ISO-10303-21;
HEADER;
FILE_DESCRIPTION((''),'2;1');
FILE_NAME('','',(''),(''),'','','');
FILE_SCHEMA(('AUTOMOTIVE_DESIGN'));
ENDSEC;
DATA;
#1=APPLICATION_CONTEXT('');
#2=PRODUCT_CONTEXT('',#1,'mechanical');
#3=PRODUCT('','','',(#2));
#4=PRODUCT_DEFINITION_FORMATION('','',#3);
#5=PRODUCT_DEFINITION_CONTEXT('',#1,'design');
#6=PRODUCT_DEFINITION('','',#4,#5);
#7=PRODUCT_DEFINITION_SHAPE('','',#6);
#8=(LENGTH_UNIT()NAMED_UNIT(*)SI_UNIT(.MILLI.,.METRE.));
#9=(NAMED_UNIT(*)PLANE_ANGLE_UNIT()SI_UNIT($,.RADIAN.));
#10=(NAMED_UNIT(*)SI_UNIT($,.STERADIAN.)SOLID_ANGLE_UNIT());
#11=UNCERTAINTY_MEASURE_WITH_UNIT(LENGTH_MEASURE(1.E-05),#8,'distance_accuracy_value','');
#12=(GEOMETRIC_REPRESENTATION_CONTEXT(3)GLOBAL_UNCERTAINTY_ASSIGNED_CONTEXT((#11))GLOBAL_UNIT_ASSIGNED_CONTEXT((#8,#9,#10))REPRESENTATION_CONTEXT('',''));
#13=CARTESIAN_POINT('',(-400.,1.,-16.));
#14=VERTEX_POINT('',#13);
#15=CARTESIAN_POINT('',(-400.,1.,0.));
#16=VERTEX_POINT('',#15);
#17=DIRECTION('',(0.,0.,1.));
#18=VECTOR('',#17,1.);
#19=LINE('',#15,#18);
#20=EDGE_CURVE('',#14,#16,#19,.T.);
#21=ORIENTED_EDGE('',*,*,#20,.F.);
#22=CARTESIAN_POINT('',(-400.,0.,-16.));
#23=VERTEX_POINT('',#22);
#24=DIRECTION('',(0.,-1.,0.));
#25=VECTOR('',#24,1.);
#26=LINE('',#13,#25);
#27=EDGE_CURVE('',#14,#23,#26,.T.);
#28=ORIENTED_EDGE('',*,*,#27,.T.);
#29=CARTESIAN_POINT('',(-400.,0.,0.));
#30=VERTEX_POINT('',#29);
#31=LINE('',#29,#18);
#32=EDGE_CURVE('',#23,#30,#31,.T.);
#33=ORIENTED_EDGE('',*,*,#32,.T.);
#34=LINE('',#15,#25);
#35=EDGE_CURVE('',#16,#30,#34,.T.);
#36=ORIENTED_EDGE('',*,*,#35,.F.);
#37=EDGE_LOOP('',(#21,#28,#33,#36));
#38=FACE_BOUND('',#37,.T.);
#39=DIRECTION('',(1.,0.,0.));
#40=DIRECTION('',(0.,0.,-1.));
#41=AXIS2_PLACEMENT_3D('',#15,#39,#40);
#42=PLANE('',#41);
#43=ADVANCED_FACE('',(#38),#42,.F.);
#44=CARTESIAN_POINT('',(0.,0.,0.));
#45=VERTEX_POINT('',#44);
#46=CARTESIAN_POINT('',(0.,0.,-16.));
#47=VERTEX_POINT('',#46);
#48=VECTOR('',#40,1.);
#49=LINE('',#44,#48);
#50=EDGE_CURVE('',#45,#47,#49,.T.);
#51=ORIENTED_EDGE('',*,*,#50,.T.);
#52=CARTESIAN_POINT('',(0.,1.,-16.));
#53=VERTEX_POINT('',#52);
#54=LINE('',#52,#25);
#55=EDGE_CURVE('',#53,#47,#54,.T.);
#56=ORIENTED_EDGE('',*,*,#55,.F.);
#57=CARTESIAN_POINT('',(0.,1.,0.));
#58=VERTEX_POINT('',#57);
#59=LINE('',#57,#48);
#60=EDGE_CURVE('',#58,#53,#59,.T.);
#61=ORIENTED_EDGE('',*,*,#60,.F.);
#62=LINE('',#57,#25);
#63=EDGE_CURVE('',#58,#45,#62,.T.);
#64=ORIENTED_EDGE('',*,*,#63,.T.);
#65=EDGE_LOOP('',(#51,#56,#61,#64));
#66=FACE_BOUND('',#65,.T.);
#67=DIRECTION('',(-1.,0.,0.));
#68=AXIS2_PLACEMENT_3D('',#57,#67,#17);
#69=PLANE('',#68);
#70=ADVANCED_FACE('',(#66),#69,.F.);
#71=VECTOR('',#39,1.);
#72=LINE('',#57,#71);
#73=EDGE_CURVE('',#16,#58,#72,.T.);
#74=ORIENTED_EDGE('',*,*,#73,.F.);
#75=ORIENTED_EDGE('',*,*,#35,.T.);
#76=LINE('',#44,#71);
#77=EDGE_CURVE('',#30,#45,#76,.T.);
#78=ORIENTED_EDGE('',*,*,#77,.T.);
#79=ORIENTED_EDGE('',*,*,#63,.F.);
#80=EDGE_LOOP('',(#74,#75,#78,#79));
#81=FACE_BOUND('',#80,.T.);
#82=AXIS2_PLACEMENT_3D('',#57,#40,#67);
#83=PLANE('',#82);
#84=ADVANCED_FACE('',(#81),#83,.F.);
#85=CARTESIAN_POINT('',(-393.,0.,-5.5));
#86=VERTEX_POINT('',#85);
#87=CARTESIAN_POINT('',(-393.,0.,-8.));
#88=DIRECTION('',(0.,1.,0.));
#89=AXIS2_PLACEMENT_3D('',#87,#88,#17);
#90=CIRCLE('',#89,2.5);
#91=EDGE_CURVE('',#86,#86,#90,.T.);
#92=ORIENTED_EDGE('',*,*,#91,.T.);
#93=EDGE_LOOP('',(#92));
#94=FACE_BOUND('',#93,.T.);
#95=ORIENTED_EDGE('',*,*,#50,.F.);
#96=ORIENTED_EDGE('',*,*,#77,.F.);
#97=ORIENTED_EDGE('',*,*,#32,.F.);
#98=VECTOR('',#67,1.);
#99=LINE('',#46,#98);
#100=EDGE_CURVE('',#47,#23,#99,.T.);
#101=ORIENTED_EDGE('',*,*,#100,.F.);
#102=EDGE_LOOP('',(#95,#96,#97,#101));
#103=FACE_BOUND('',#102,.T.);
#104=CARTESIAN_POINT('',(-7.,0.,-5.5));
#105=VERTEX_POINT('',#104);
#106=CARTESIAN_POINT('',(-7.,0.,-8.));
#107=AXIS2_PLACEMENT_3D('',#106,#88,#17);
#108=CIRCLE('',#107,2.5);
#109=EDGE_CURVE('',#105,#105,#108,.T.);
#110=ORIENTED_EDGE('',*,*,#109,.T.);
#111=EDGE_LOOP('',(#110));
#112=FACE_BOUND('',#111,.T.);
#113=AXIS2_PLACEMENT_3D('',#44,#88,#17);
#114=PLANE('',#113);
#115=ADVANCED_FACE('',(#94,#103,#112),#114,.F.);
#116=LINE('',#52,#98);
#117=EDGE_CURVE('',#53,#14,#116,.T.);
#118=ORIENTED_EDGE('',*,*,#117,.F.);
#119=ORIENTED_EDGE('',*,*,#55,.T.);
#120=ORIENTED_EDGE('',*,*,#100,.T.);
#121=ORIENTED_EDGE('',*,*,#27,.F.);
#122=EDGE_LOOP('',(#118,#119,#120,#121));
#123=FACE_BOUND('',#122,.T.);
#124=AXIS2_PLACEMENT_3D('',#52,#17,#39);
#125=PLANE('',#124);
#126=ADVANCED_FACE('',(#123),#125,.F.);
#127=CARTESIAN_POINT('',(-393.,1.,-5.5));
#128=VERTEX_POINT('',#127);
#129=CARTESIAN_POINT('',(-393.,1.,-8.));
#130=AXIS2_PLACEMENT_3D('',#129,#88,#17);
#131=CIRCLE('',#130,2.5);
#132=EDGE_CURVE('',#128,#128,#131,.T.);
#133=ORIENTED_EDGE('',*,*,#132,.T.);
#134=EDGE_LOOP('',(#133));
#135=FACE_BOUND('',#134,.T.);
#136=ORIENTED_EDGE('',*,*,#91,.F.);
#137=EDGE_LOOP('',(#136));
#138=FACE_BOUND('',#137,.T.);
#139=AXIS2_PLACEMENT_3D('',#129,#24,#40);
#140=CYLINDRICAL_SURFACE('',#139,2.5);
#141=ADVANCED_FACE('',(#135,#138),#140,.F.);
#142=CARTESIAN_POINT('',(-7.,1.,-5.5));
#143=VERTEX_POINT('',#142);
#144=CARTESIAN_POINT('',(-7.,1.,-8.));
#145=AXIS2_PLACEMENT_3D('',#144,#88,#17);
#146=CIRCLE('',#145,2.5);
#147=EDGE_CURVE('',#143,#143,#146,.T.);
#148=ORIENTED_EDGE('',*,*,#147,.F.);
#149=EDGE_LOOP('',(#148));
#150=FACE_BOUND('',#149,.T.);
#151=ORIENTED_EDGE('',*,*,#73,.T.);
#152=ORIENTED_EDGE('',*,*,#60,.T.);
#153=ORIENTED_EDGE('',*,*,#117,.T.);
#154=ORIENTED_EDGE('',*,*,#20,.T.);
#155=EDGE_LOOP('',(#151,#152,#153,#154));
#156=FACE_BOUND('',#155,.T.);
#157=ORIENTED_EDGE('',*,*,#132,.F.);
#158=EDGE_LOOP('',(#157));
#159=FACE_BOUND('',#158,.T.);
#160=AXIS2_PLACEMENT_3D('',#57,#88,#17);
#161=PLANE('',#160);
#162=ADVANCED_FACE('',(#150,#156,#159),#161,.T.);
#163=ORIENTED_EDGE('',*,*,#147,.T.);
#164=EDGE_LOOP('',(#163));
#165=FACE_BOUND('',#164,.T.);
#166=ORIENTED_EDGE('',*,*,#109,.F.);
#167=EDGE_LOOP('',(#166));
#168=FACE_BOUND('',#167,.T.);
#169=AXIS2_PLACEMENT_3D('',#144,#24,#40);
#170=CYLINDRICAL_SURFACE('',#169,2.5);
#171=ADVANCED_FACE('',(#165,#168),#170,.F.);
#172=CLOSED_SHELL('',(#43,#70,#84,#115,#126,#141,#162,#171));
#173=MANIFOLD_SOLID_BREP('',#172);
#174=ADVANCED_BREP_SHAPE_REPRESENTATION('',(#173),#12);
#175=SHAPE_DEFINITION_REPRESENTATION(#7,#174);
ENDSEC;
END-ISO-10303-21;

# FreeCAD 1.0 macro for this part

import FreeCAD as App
import Part
import Sketcher
from FreeCAD import Vector

doc = App.newDocument("Part")
body = doc.addObject("PartDesign::Body", "Body")

# Sketch on XZ plane
sketch1 = body.newObject("Sketcher::SketchObject", "Sketch")
sketch1.AttachmentSupport = (doc.getObject("XZ_Plane"), [""])
sketch1.MapMode = "FlatFace"
sketch1.addGeometry(Part.LineSegment(Vector(-400, -16, 0), Vector(-400, 0, 0)), False)
sketch1.addGeometry(Part.LineSegment(Vector(-400, 0, 0), Vector(0, 0, 0)), False)
sketch1.addGeometry(Part.LineSegment(Vector(0, 0, 0), Vector(0, -16, 0)), False)
sketch1.addGeometry(Part.LineSegment(Vector(0, -16, 0), Vector(-400, -16, 0)), False)
sketch1.addGeometry(Part.Circle(Vector(-393, -8, 0), Vector(0, 0, 1), 2.5), False)
sketch1.addGeometry(Part.Circle(Vector(-7, -8, 0), Vector(0, 0, 1), 2.5), False)
sketch1.addConstraint(Sketcher.Constraint("Coincident", 0, 2, 1, 1))
sketch1.addConstraint(Sketcher.Constraint("Coincident", 1, 2, 2, 1))
sketch1.addConstraint(Sketcher.Constraint("Coincident", 2, 2, 3, 1))
sketch1.addConstraint(Sketcher.Constraint("Coincident", 3, 2, 0, 1))
sketch1.addConstraint(Sketcher.Constraint("Vertical", 0))
sketch1.addConstraint(Sketcher.Constraint("Horizontal", 1))
sketch1.addConstraint(Sketcher.Constraint("Vertical", 2))
sketch1.addConstraint(Sketcher.Constraint("Horizontal", 3))
sketch1.addConstraint(Sketcher.Constraint("Coincident", 1, 2, -1, 1))
sketch1.addConstraint(Sketcher.Constraint("Equal", 4, 5))
sketch1.addConstraint(Sketcher.Constraint("Horizontal", 4, 3, 5, 3))
sketch1.addConstraint(Sketcher.Constraint("Diameter", 4, 5.0))
sketch1.addConstraint(Sketcher.Constraint("DistanceX", 1, 1, 1, 2, 400.0))
sketch1.addConstraint(Sketcher.Constraint("DistanceY", 0, 1, 0, 2, 16.0))
sketch1.addConstraint(Sketcher.Constraint("DistanceX", 4, 3, -1, 1, 393.0))
sketch1.addConstraint(Sketcher.Constraint("DistanceY", 4, 3, -1, 1, 8.0))
sketch1.addConstraint(Sketcher.Constraint("DistanceX", 5, 3, -1, 1, 7.0))
pad1 = body.newObject("PartDesign::Pad", "Pad")
pad1.Profile = sketch1
pad1.Length = 1
pad1.Reversed = True

doc.recompute()
